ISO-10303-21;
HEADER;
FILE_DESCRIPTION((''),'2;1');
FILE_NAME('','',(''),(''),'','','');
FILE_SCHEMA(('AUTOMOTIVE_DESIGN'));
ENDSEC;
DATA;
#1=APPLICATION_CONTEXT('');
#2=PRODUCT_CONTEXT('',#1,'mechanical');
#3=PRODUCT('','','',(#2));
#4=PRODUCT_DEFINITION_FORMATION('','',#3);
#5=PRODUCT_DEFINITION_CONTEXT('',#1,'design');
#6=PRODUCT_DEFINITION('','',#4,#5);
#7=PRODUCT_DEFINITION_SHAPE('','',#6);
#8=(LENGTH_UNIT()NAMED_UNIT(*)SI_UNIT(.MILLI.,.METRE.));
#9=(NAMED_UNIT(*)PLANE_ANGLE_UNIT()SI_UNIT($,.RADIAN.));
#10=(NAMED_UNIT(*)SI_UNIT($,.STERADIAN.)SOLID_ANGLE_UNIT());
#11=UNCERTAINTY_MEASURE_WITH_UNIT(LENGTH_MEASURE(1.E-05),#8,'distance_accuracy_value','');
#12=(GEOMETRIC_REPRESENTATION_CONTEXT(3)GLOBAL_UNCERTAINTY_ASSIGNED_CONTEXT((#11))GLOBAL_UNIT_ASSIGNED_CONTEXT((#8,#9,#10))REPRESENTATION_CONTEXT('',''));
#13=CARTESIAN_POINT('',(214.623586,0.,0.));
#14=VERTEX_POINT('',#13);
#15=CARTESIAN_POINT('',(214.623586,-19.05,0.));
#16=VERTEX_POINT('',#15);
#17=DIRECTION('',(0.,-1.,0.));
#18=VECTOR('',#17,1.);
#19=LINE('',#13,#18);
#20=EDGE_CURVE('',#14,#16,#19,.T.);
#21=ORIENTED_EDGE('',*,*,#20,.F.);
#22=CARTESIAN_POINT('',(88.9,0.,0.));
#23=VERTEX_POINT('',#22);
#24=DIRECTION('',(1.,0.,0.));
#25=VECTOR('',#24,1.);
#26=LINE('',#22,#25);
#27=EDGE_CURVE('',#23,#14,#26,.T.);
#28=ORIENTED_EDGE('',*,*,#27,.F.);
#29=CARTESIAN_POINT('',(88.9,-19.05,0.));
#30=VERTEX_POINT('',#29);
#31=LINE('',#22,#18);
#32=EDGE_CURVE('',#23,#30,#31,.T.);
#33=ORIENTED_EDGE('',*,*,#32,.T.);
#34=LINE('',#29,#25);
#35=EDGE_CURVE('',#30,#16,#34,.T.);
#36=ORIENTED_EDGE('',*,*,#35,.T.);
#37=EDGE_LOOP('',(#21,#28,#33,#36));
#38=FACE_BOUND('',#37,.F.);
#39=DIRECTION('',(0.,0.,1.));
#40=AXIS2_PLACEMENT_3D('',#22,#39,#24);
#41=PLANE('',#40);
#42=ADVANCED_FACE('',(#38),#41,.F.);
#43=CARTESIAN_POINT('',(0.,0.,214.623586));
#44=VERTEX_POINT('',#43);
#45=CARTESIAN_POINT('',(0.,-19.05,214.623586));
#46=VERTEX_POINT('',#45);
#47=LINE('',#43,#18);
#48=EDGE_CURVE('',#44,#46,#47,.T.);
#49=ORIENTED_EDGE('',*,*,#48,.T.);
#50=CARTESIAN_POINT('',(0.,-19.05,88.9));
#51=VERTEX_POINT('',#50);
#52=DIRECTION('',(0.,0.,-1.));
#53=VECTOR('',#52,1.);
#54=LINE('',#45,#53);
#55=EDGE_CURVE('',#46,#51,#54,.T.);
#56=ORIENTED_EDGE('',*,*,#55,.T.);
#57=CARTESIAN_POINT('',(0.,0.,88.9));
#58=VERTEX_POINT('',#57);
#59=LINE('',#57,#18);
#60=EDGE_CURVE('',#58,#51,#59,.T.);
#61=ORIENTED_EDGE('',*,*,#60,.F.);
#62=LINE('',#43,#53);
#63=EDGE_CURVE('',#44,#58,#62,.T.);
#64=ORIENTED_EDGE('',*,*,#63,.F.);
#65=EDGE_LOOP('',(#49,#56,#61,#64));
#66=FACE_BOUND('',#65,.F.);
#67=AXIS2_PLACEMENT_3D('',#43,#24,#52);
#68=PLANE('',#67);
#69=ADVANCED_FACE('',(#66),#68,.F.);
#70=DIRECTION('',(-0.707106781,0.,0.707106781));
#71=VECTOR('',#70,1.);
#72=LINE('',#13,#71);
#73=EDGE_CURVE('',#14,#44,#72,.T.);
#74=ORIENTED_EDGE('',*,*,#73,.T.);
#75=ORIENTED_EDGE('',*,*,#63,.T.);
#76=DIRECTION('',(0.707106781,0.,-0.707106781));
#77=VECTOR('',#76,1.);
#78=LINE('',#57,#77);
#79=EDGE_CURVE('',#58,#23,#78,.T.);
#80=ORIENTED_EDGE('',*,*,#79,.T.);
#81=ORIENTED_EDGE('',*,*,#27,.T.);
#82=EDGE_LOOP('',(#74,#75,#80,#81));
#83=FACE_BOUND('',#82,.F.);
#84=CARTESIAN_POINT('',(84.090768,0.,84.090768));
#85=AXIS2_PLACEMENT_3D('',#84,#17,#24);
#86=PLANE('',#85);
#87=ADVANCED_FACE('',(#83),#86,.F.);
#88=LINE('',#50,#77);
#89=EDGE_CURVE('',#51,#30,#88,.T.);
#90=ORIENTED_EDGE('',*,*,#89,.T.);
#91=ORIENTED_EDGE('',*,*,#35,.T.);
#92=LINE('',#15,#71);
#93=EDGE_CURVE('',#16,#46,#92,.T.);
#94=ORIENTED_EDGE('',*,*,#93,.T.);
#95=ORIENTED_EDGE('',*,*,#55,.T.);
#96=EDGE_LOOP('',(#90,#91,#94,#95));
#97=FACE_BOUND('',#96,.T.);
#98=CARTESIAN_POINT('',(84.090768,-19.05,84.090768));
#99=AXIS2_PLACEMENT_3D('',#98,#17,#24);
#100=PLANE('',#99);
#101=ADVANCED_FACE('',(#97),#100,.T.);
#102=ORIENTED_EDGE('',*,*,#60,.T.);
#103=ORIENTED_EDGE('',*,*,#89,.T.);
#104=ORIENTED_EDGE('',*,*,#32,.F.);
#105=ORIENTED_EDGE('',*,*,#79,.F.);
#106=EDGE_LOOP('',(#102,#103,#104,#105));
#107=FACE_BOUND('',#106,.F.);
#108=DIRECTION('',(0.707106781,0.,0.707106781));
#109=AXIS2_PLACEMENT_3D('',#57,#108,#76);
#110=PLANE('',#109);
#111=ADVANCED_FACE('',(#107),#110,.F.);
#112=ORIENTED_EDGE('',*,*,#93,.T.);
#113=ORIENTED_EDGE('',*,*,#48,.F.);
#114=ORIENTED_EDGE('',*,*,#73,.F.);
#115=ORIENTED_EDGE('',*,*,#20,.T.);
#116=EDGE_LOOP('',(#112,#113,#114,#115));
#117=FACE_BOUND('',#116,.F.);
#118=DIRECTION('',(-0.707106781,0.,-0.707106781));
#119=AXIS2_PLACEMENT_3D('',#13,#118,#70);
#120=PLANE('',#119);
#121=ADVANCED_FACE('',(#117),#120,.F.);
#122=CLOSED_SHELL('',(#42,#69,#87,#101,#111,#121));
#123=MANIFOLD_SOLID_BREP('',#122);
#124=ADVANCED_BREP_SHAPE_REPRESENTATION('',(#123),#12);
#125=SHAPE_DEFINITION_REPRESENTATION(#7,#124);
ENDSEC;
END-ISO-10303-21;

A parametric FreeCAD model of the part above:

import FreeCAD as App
import Part
import Sketcher
from FreeCAD import Vector
Q = App.Units.Quantity


def add_polygon(sketch, points):
    """Adds a closed chain of lines whose ends are joined by coincident constraints."""
    first, n = sketch.GeometryCount, len(points)
    for a, b in zip(points, points[1:] + points[:1]):
        sketch.addGeometry(Part.LineSegment(App.Vector(*a, 0), App.Vector(*b, 0)), False)
    for i in range(n):
        sketch.addConstraint(Sketcher.Constraint("Coincident", first + i, 2, first + (i + 1) % n, 1))

doc = App.newDocument("Part")
body = doc.addObject("PartDesign::Body", "Body")

# Sketch on XZ plane
sketch1 = body.newObject("Sketcher::SketchObject", "Sketch")
sketch1.AttachmentSupport = (doc.getObject("XZ_Plane"), [""])
sketch1.MapMode = "FlatFace"
add_polygon(sketch1, [(0, 89), (89, 0), (215, 0), (0, 215)])  # lines 0-3
sketch1.addConstraint(Sketcher.Constraint("Horizontal", 1))
sketch1.addConstraint(Sketcher.Constraint("Vertical", 3))
sketch1.addConstraint(Sketcher.Constraint("PointOnObject", 0, 2, -1))
sketch1.addConstraint(Sketcher.Constraint("PointOnObject", 2, 2, -2))
sketch1.addConstraint(Sketcher.Constraint("Parallel", 0, 2))
sketch1.addConstraint(Sketcher.Constraint("Equal", 1, 3))
sketch1.addConstraint(Sketcher.Constraint("DistanceX", -1, 1, 0, 2, Q("3.5 in")))
sketch1.addConstraint(Sketcher.Constraint("DistanceX", 1, 1, 1, 2, 125.723586))
pad1 = body.newObject("PartDesign::Pad", "Pad")
pad1.Profile = sketch1
pad1.Length = Q("0.75 in")

doc.recompute()
